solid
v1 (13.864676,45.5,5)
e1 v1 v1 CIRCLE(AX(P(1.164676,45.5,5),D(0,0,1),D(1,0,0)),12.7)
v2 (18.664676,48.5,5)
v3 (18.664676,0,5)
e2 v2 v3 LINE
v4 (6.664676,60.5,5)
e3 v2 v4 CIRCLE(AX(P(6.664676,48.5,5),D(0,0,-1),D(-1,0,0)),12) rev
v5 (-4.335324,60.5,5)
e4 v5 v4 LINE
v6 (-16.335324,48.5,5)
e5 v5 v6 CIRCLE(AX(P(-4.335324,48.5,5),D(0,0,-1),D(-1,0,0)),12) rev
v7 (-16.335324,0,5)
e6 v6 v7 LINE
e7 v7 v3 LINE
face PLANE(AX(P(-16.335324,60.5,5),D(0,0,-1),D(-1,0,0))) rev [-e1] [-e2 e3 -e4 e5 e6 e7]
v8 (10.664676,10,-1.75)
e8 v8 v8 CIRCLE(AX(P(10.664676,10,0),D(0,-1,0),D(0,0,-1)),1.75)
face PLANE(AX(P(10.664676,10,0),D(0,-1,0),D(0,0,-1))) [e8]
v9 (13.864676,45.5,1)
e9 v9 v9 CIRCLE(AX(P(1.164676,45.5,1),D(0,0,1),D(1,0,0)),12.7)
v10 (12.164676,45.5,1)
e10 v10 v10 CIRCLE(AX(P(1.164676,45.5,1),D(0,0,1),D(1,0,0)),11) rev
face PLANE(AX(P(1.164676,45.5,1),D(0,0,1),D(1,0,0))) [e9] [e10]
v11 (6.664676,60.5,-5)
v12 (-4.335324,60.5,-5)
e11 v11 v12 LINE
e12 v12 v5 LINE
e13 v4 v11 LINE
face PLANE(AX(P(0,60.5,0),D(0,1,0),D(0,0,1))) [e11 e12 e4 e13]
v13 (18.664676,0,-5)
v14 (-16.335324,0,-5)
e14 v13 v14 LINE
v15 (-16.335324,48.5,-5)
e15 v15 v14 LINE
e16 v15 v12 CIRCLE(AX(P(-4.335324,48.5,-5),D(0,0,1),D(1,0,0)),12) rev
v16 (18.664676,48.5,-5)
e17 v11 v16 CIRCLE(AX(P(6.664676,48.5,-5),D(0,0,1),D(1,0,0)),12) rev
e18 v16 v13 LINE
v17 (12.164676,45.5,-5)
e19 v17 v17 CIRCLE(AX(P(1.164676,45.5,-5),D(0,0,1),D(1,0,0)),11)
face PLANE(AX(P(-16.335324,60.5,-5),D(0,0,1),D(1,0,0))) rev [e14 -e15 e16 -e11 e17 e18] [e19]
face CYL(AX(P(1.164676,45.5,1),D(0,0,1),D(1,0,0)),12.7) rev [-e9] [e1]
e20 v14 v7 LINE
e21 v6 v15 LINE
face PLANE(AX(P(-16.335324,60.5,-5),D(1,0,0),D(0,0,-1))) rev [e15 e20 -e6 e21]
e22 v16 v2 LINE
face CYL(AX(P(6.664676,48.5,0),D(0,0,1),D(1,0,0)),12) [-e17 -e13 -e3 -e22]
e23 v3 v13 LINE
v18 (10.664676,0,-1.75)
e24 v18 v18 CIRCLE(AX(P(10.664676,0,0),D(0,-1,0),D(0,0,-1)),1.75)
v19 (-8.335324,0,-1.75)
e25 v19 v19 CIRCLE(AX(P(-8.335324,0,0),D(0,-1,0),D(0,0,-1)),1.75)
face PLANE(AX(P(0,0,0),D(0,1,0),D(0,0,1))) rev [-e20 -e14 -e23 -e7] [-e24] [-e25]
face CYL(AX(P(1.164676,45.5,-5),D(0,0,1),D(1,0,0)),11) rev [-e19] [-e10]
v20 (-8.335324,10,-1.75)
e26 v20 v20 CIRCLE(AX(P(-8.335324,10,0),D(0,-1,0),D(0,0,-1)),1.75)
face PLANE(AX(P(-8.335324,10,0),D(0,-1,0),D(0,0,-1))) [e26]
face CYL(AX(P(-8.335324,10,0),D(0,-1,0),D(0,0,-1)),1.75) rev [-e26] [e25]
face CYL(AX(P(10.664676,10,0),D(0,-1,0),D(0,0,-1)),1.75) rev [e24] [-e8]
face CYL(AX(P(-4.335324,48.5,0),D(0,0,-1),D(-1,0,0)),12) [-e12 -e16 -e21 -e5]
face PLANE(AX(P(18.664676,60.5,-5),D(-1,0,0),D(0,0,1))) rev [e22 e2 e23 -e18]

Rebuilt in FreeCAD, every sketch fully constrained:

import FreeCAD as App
import Part
import Sketcher
from FreeCAD import Vector


def edges_at(feature, points):
    """Names of the edges that pass closest to the given points."""
    edges = feature.Shape.Edges
    near = lambda p: min(range(len(edges)), key=lambda i: edges[i].distToShape(Part.Vertex(*p))[0])
    return sorted({f"Edge{near(p) + 1}" for p in points})

doc = App.newDocument("Part")
body = doc.addObject("PartDesign::Body", "Body")

sketch1 = body.newObject("Sketcher::SketchObject", "Sketch")
sketch1.AttachmentSupport = (doc.getObject("XZ_Plane"), [""])
sketch1.MapMode = "FlatFace"
sketch1.addGeometry([
    Part.LineSegment(Vector(-16, -5, 0), Vector(-16, 5, 0)),
    Part.LineSegment(Vector(-16, 5, 0), Vector(19, 5, 0)),
    Part.LineSegment(Vector(19, 5, 0), Vector(19, -5, 0)),
    Part.LineSegment(Vector(19, -5, 0), Vector(-16, -5, 0)),
], False)
sketch1.addConstraint([
    Sketcher.Constraint("Coincident", 0, 2, 1, 1),
    Sketcher.Constraint("Coincident", 1, 2, 2, 1),
    Sketcher.Constraint("Coincident", 2, 2, 3, 1),
    Sketcher.Constraint("Coincident", 3, 2, 0, 1),
    Sketcher.Constraint("Vertical", 0),
    Sketcher.Constraint("Horizontal", 1),
    Sketcher.Constraint("Vertical", 2),
    Sketcher.Constraint("Horizontal", 3),
    Sketcher.Constraint("DistanceX", 1, 1, 1, 2, 35.0),
    Sketcher.Constraint("DistanceY", 0, 1, 0, 2, 10.0),
    Sketcher.Constraint("DistanceY", -1, 1, 0, 2, 5.0),
    Sketcher.Constraint("DistanceX", 0, 2, -1, 1, 16.335324),
])
pad1 = body.newObject("PartDesign::Pad", "Pad")
pad1.Profile = sketch1
pad1.Length = 60.5
pad1.Reversed = True

sketch2 = body.newObject("Sketcher::SketchObject", "Sketch001")
sketch2.AttachmentSupport = (doc.getObject("XY_Plane"), [""])
sketch2.MapMode = "FlatFace"
sketch2.AttachmentOffset = App.Placement(Vector(0, 0, 5), App.Rotation())
sketch2.addGeometry(Part.Circle(Vector(1, 46, 0), Vector(0, 0, 1), 11), False)
sketch2.addConstraint([
    Sketcher.Constraint("Diameter", 0, 22.0),
    Sketcher.Constraint("DistanceY", -1, 1, 0, 3, 45.5),
    Sketcher.Constraint("DistanceX", -1, 1, 0, 3, 1.164676),
])
pocket1 = body.newObject("PartDesign::Pocket", "Pocket")
pocket1.Profile = sketch2
pocket1.Type = "ThroughAll"

sketch3 = body.newObject("Sketcher::SketchObject", "Sketch002")
sketch3.AttachmentSupport = (doc.getObject("XZ_Plane"), [""])
sketch3.MapMode = "FlatFace"
sketch3.addGeometry([
    Part.Circle(Vector(-8.3, 0, 0), Vector(0, 0, 1), 1.8),
    Part.Circle(Vector(10.7, 0, 0), Vector(0, 0, 1), 1.8),
], False)
sketch3.addConstraint([
    Sketcher.Constraint("Equal", 0, 1),
    Sketcher.Constraint("PointOnObject", 0, 3, -1),
    Sketcher.Constraint("PointOnObject", 1, 3, -1),
    Sketcher.Constraint("Diameter", 0, 3.5),
    Sketcher.Constraint("DistanceX", 0, 3, 1, 3, 19.0),
    Sketcher.Constraint("DistanceX", 0, 3, -1, 1, 8.335324),
])
pocket2 = body.newObject("PartDesign::Pocket", "Pocket001")
pocket2.Profile = sketch3
pocket2.Length = 10
doc.recompute()

fillet = body.newObject("PartDesign::Fillet", "Fillet")
fillet.Base = (pocket2, edges_at(pocket2, [(18.665, 60.5, 0), (-16.335, 60.5, 0)]))
fillet.Radius = 12

sketch4 = body.newObject("Sketcher::SketchObject", "Sketch003")
sketch4.AttachmentSupport = (doc.getObject("XY_Plane"), [""])
sketch4.MapMode = "FlatFace"
sketch4.AttachmentOffset = App.Placement(Vector(0, 0, 5), App.Rotation())
sketch4.addGeometry(Part.Circle(Vector(1, 46, 0), Vector(0, 0, 1), 13), False)
sketch4.addConstraint([
    Sketcher.Constraint("Diameter", 0, 25.4),
    Sketcher.Constraint("DistanceY", -1, 1, 0, 3, 45.5),
    Sketcher.Constraint("DistanceX", -1, 1, 0, 3, 1.164676),
])
pocket3 = body.newObject("PartDesign::Pocket", "Pocket002")
pocket3.Profile = sketch4
pocket3.Length = 4

doc.recompute()
